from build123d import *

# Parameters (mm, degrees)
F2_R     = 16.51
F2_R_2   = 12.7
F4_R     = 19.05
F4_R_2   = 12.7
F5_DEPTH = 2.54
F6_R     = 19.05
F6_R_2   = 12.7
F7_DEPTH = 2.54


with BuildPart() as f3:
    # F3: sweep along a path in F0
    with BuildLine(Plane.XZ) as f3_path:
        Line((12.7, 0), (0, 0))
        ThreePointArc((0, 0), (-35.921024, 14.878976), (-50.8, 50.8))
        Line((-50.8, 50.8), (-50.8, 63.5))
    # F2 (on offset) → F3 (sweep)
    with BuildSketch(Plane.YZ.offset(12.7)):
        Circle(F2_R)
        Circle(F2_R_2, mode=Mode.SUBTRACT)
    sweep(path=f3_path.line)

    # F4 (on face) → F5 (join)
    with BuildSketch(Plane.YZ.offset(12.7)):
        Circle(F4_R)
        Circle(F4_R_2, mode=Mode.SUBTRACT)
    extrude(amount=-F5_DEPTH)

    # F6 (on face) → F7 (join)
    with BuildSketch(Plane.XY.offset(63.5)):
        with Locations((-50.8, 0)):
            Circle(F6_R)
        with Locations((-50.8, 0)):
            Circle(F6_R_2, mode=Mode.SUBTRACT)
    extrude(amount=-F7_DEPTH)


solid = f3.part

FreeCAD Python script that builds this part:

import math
import FreeCAD as App
import Part
import Sketcher

V = App.Vector
Q = App.Units.Quantity

doc = App.newDocument("Part")
body = doc.addObject("PartDesign::Body", "Body")

# Sketch on YZ plane
sketch1 = doc.addObject("Sketcher::SketchObject", "Sketch")
body.addObject(sketch1)
sketch1.AttachmentSupport = (doc.YZ_Plane, [""])
sketch1.MapMode = "FlatFace"
sketch1.AttachmentOffset = App.Placement(V(0, 0, 0.5 * 25.4), App.Rotation())
sketch1.addGeometry([
    Part.Circle(V(0, 0, 0), V(0, 0, 1), 17),
    Part.Circle(V(0, 0, 0), V(0, 0, 1), 13),
], False)
sketch1.addConstraint([
    Sketcher.Constraint("Coincident", 0, 3, -1, 1),
    Sketcher.Constraint("Coincident", 1, 3, -1, 1),
    Sketcher.Constraint("Diameter", 1, Q("1 in")),
    Sketcher.Constraint("Diameter", 0, Q("1.3 in")),
])

# Sketch on XZ plane
sketch2 = doc.addObject("Sketcher::SketchObject", "Sketch001")
body.addObject(sketch2)
sketch2.AttachmentSupport = (doc.XZ_Plane, [""])
sketch2.MapMode = "FlatFace"
sketch2.addGeometry([
    Part.LineSegment(V(13, 0, 0), V(0, 0, 0)),
    Part.ArcOfCircle(Part.Circle(V(0, 51, 0), V(0, 0, 1), 51), math.radians(-180), math.radians(-90)),
    Part.LineSegment(V(-51, 51, 0), V(-51, 64, 0)),
], False)
sketch2.addConstraint([
    Sketcher.Constraint("Tangent", 0, 2, 1, 2),
    Sketcher.Constraint("Tangent", 1, 1, 2, 1),
    Sketcher.Constraint("Horizontal", 0),
    Sketcher.Constraint("Vertical", 2),
    Sketcher.Constraint("Coincident", 0, 2, -1, 1),
    Sketcher.Constraint("Equal", 0, 2),
    Sketcher.Constraint("Radius", 1, Q("2.0000001 in")),
    Sketcher.Constraint("DistanceX", 0, 2, 0, 1, Q("0.5 in")),
])
doc.recompute()

additivepipe = doc.addObject("PartDesign::AdditivePipe", "AdditivePipe")
body.addObject(additivepipe)
additivepipe.Profile = sketch1
additivepipe.Spine = (sketch2, ["Edge1", "Edge2", "Edge3"])

# Sketch on YZ plane
sketch3 = doc.addObject("Sketcher::SketchObject", "Sketch002")
body.addObject(sketch3)
sketch3.AttachmentSupport = (doc.YZ_Plane, [""])
sketch3.MapMode = "FlatFace"
sketch3.AttachmentOffset = App.Placement(V(0, 0, 0.5 * 25.4), App.Rotation())
sketch3.addGeometry([
    Part.Circle(V(0, 0, 0), V(0, 0, 1), 19),
    Part.Circle(V(0, 0, 0), V(0, 0, 1), 13),
], False)
sketch3.addConstraint([
    Sketcher.Constraint("Coincident", 0, 3, -1, 1),
    Sketcher.Constraint("Coincident", 1, 3, -1, 1),
    Sketcher.Constraint("Diameter", 1, Q("1 in")),
    Sketcher.Constraint("Diameter", 0, Q("1.5 in")),
])
pad1 = doc.addObject("PartDesign::Pad", "Pad")
body.addObject(pad1)
pad1.Profile = sketch3
pad1.Length = Q("0.1 in")
pad1.Reversed = True

# Sketch on XY plane
sketch4 = doc.addObject("Sketcher::SketchObject", "Sketch003")
body.addObject(sketch4)
sketch4.AttachmentSupport = (doc.XY_Plane, [""])
sketch4.MapMode = "FlatFace"
sketch4.AttachmentOffset = App.Placement(V(0, 0, 2.5 * 25.4), App.Rotation())
sketch4.addGeometry([
    Part.Circle(V(-51, 0, 0), V(0, 0, 1), 19),
    Part.Circle(V(-51, 0, 0), V(0, 0, 1), 13),
], False)
sketch4.addConstraint([
    Sketcher.Constraint("Coincident", 1, 3, 0, 3),
    Sketcher.Constraint("PointOnObject", 0, 3, -1),
    Sketcher.Constraint("Diameter", 1, Q("1 in")),
    Sketcher.Constraint("Diameter", 0, Q("1.5 in")),
    Sketcher.Constraint("DistanceX", 0, 3, -1, 1, Q("2 in")),
])
pad2 = doc.addObject("PartDesign::Pad", "Pad001")
body.addObject(pad2)
pad2.Profile = sketch4
pad2.Length = Q("0.1 in")
pad2.Reversed = True

doc.recompute()
